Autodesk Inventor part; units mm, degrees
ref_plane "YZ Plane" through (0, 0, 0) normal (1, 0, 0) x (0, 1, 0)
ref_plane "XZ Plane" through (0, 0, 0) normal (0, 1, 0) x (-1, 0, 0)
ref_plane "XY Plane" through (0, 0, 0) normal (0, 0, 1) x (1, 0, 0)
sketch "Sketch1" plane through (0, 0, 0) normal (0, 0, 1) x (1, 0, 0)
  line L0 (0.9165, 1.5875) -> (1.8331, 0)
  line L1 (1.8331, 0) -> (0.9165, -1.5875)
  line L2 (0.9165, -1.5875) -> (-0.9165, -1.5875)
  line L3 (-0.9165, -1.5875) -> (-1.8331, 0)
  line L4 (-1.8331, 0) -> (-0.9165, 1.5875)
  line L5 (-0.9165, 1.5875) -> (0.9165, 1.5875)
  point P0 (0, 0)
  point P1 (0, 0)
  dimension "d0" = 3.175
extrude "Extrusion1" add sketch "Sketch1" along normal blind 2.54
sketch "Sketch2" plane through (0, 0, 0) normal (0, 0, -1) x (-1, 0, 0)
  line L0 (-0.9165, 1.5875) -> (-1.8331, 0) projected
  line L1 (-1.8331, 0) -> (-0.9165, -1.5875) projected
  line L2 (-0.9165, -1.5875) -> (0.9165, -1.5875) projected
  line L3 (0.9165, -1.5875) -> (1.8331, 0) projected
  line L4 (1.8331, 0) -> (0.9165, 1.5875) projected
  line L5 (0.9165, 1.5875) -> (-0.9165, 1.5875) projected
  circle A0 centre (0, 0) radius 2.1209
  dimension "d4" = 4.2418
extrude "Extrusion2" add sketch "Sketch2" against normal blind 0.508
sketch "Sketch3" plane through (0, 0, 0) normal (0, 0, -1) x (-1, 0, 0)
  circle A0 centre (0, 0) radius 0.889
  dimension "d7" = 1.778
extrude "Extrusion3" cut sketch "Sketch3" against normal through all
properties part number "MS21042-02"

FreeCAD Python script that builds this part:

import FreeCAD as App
import Part
import Sketcher
from FreeCAD import Vector
Q = App.Units.Quantity

doc = App.newDocument("Part")
body = doc.addObject("PartDesign::Body", "Body")

sketch1 = body.newObject("Sketcher::SketchObject", "Sketch")
sketch1.AttachmentSupport = (doc.getObject("XY_Plane"), [""])
sketch1.MapMode = "FlatFace"
sketch1.addGeometry(Part.LineSegment(Vector(1.8331, 0, 0), Vector(0.9165, 1.5875, 0)), False)
sketch1.addGeometry(Part.LineSegment(Vector(0.9165, 1.5875, 0), Vector(-0.9165, 1.5875, 0)), False)
sketch1.addGeometry(Part.LineSegment(Vector(-0.9165, 1.5875, 0), Vector(-1.8331, 0, 0)), False)
sketch1.addGeometry(Part.LineSegment(Vector(-1.8331, 0, 0), Vector(-0.9165, -1.5875, 0)), False)
sketch1.addGeometry(Part.LineSegment(Vector(-0.9165, -1.5875, 0), Vector(0.9165, -1.5875, 0)), False)
sketch1.addGeometry(Part.LineSegment(Vector(0.9165, -1.5875, 0), Vector(1.8331, 0, 0)), False)
sketch1.addConstraint(Sketcher.Constraint("Coincident", 0, 2, 1, 1))
sketch1.addConstraint(Sketcher.Constraint("Coincident", 1, 2, 2, 1))
sketch1.addConstraint(Sketcher.Constraint("Coincident", 2, 2, 3, 1))
sketch1.addConstraint(Sketcher.Constraint("Coincident", 3, 2, 4, 1))
sketch1.addConstraint(Sketcher.Constraint("Coincident", 4, 2, 5, 1))
sketch1.addConstraint(Sketcher.Constraint("Coincident", 5, 2, 0, 1))
sketch1.addConstraint(Sketcher.Constraint("Horizontal", 1))
sketch1.addConstraint(Sketcher.Constraint("Horizontal", 4))
sketch1.addConstraint(Sketcher.Constraint("Symmetric", 0, 2, 3, 2, -1, 1))
sketch1.addConstraint(Sketcher.Constraint("Symmetric", 2, 2, 5, 2, -1, 1))
sketch1.addConstraint(Sketcher.Constraint("PointOnObject", 2, 2, -1))
sketch1.addConstraint(Sketcher.Constraint("Parallel", 2, 5))
sketch1.addConstraint(Sketcher.Constraint("Vertical", 1, 2, 3, 2))
sketch1.addConstraint(Sketcher.Constraint("DistanceY", 3, 2, 1, 2, Q("0.125 in")))
sketch1.addConstraint(Sketcher.Constraint("DistanceX", 1, 2, 1, 1, 1.833))
sketch1.addConstraint(Sketcher.Constraint("Distance", 0, 1.833))
pad1 = body.newObject("PartDesign::Pad", "Pad")
pad1.Profile = sketch1
pad1.Length = Q("0.1 in")

sketch2 = body.newObject("Sketcher::SketchObject", "Sketch001")
sketch2.AttachmentSupport = (doc.getObject("XY_Plane"), [""])
sketch2.MapMode = "FlatFace"
sketch2.addGeometry(Part.Circle(Vector(0, 0, 0), Vector(0, 0, 1), 2.1209), False)
sketch2.addGeometry(Part.LineSegment(Vector(1.8331, 0, 0), Vector(0.9165, 1.5875, 0)), False)
sketch2.addGeometry(Part.LineSegment(Vector(0.9165, 1.5875, 0), Vector(-0.9165, 1.5875, 0)), False)
sketch2.addGeometry(Part.LineSegment(Vector(-0.9165, 1.5875, 0), Vector(-1.8331, 0, 0)), False)
sketch2.addGeometry(Part.LineSegment(Vector(-1.8331, 0, 0), Vector(-0.9165, -1.5875, 0)), False)
sketch2.addGeometry(Part.LineSegment(Vector(-0.9165, -1.5875, 0), Vector(0.9165, -1.5875, 0)), False)
sketch2.addGeometry(Part.LineSegment(Vector(0.9165, -1.5875, 0), Vector(1.8331, 0, 0)), False)
sketch2.addConstraint(Sketcher.Constraint("Coincident", 1, 2, 2, 1))
sketch2.addConstraint(Sketcher.Constraint("Coincident", 2, 2, 3, 1))
sketch2.addConstraint(Sketcher.Constraint("Coincident", 3, 2, 4, 1))
sketch2.addConstraint(Sketcher.Constraint("Coincident", 4, 2, 5, 1))
sketch2.addConstraint(Sketcher.Constraint("Coincident", 5, 2, 6, 1))
sketch2.addConstraint(Sketcher.Constraint("Coincident", 6, 2, 1, 1))
sketch2.addConstraint(Sketcher.Constraint("Horizontal", 2))
sketch2.addConstraint(Sketcher.Constraint("Horizontal", 5))
sketch2.addConstraint(Sketcher.Constraint("Coincident", 0, 3, -1, 1))
sketch2.addConstraint(Sketcher.Constraint("Symmetric", 1, 2, 4, 2, -1, 1))
sketch2.addConstraint(Sketcher.Constraint("Symmetric", 3, 2, 6, 2, -1, 1))
sketch2.addConstraint(Sketcher.Constraint("PointOnObject", 3, 2, -1))
sketch2.addConstraint(Sketcher.Constraint("Parallel", 3, 6))
sketch2.addConstraint(Sketcher.Constraint("Vertical", 2, 2, 4, 2))
sketch2.addConstraint(Sketcher.Constraint("Diameter", 0, Q("0.167 in")))
sketch2.addConstraint(Sketcher.Constraint("DistanceY", -1, 1, 1, 2, Q("0.0625 in")))
sketch2.addConstraint(Sketcher.Constraint("DistanceX", 2, 2, 2, 1, 1.833))
sketch2.addConstraint(Sketcher.Constraint("Distance", 1, 1.833))
pad2 = body.newObject("PartDesign::Pad", "Pad001")
pad2.Profile = sketch2
pad2.Length = Q("0.02 in")

sketch3 = body.newObject("Sketcher::SketchObject", "Sketch002")
sketch3.AttachmentSupport = (doc.getObject("XY_Plane"), [""])
sketch3.MapMode = "FlatFace"
sketch3.addGeometry(Part.Circle(Vector(0, 0, 0), Vector(0, 0, 1), 0.889), False)
sketch3.addConstraint(Sketcher.Constraint("Coincident", 0, 3, -1, 1))
sketch3.addConstraint(Sketcher.Constraint("Diameter", 0, Q("0.07 in")))
pocket1 = body.newObject("PartDesign::Pocket", "Pocket")
pocket1.Profile = sketch3
pocket1.Type = "ThroughAll"
pocket1.Reversed = True

doc.recompute()
